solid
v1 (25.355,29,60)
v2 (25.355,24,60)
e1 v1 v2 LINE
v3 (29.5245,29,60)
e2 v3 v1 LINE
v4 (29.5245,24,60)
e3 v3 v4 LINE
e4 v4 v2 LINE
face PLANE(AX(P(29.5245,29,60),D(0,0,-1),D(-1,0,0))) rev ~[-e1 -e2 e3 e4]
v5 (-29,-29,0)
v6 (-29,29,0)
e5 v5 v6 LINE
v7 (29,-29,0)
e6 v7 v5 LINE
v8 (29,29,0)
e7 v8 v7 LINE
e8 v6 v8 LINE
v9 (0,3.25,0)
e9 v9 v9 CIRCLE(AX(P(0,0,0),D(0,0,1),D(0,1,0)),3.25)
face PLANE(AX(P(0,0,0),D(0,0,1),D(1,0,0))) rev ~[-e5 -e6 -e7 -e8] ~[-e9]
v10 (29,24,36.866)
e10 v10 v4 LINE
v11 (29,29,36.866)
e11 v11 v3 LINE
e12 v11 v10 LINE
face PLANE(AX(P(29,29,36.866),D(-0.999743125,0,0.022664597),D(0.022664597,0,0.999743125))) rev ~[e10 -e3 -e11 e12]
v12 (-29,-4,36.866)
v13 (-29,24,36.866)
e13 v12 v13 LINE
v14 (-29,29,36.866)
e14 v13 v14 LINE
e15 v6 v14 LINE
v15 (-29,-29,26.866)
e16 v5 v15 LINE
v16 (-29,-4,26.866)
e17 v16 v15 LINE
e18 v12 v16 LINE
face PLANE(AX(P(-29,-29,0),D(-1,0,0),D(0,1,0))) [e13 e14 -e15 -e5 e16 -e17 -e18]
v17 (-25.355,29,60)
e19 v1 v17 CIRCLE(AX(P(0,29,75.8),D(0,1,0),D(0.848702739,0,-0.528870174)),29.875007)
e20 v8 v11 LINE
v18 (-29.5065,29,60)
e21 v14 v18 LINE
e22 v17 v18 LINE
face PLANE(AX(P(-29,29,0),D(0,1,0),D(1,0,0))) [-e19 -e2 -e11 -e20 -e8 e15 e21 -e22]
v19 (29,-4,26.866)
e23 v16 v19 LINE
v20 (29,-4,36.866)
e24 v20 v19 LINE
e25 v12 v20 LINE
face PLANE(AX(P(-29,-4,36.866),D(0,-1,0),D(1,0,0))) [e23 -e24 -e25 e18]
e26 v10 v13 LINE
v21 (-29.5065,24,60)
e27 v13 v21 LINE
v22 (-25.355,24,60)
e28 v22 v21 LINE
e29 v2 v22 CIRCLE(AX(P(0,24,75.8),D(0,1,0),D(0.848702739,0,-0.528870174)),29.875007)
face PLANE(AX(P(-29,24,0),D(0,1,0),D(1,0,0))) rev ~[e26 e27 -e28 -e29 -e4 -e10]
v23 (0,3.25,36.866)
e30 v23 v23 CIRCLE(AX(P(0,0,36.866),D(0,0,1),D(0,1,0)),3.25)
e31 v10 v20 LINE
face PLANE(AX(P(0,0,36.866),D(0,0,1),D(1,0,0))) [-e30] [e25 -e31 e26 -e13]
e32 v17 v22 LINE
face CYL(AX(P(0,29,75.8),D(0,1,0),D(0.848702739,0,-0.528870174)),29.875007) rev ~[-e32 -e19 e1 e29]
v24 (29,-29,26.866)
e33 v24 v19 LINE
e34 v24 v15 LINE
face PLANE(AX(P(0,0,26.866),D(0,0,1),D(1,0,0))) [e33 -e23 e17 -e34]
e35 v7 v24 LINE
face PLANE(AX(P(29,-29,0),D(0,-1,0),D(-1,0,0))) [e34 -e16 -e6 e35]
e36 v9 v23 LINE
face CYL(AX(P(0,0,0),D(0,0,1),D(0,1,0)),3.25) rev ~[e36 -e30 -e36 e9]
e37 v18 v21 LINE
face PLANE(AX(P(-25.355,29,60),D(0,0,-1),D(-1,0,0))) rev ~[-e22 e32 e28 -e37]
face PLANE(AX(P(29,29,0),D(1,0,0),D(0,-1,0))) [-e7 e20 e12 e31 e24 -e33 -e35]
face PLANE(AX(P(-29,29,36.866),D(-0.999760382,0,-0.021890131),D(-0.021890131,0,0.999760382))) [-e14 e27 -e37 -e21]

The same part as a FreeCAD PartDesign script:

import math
import FreeCAD as App
import Part
import Sketcher

V = App.Vector


def add_polygon(sketch, points):
    """Adds a closed chain of lines whose ends are joined by coincident constraints."""
    first, n = sketch.GeometryCount, len(points)
    for a, b in zip(points, points[1:] + points[:1]):
        sketch.addGeometry(Part.LineSegment(App.Vector(*a, 0), App.Vector(*b, 0)), False)
    for i in range(n):
        sketch.addConstraint(Sketcher.Constraint("Coincident", first + i, 2, first + (i + 1) % n, 1))

doc = App.newDocument("Part")
body = doc.addObject("PartDesign::Body", "Body")

# Sketch on XY plane
sketch1 = body.newObject("Sketcher::SketchObject", "Sketch")
sketch1.AttachmentSupport = (doc.getObject("XY_Plane"), [""])
sketch1.MapMode = "FlatFace"
add_polygon(sketch1, [(-29, -29), (29, -29), (29, 29), (-29, 29)])  # lines 0-3
sketch1.addConstraint(Sketcher.Constraint("Horizontal", 0))
sketch1.addConstraint(Sketcher.Constraint("Vertical", 1))
sketch1.addConstraint(Sketcher.Constraint("Horizontal", 2))
sketch1.addConstraint(Sketcher.Constraint("Vertical", 3))
sketch1.addConstraint(Sketcher.Constraint("Symmetric", 0, 2, 2, 2, -1, 1))
sketch1.addConstraint(Sketcher.Constraint("Equal", 2, 1))
sketch1.addConstraint(Sketcher.Constraint("DistanceX", 0, 1, 0, 2, 58.0))
pad1 = body.newObject("PartDesign::Pad", "Pad")
pad1.Profile = sketch1
pad1.Length = 36.866

# Sketch on XY plane
sketch2 = body.newObject("Sketcher::SketchObject", "Sketch001")
sketch2.AttachmentSupport = (doc.getObject("XY_Plane"), [""])
sketch2.MapMode = "FlatFace"
sketch2.AttachmentOffset = App.Placement(V(0, 0, 36.866), App.Rotation())
add_polygon(sketch2, [(29, -4), (-29, -4), (-29, -29), (29, -29)])  # lines 0-3
sketch2.addConstraint(Sketcher.Constraint("Horizontal", 0))
sketch2.addConstraint(Sketcher.Constraint("Vertical", 1))
sketch2.addConstraint(Sketcher.Constraint("Horizontal", 2))
sketch2.addConstraint(Sketcher.Constraint("Vertical", 3))
sketch2.addConstraint(Sketcher.Constraint("DistanceX", 0, 2, 0, 1, 58.0))
sketch2.addConstraint(Sketcher.Constraint("DistanceY", 1, 2, 1, 1, 25.0))
sketch2.addConstraint(Sketcher.Constraint("DistanceX", 0, 2, -1, 1, 29.0))
sketch2.addConstraint(Sketcher.Constraint("DistanceY", 0, 2, -1, 1, 4.0))
pocket1 = body.newObject("PartDesign::Pocket", "Pocket")
pocket1.Profile = sketch2
pocket1.Length = 10

# Sketch on XY plane
sketch3 = body.newObject("Sketcher::SketchObject", "Sketch002")
sketch3.AttachmentSupport = (doc.getObject("XY_Plane"), [""])
sketch3.MapMode = "FlatFace"
sketch3.addGeometry(Part.Circle(V(0, 0, 0), V(0, 0, 1), 3.2), False)
sketch3.addConstraint(Sketcher.Constraint("Coincident", 0, 3, -1, 1))
sketch3.addConstraint(Sketcher.Constraint("Diameter", 0, 6.5))
doc.recompute()
hole = body.newObject("PartDesign::Hole", "Hole")
hole.Profile = sketch3
hole.ThreadType = "None"
hole.Diameter = 6.5
hole.DepthType = "ThroughAll"
hole.Reversed = True

# Sketch on XZ plane
sketch4 = body.newObject("Sketcher::SketchObject", "Sketch003")
sketch4.AttachmentSupport = (doc.getObject("XZ_Plane"), [""])
sketch4.MapMode = "FlatFace"
sketch4.AttachmentOffset = App.Placement(V(0, 0, -29), App.Rotation())
sketch4.addGeometry(Part.LineSegment(V(29, 36.9, 0), V(-29, 36.9, 0)), False)
sketch4.addGeometry(Part.LineSegment(V(-29, 36.9, 0), V(-29.5, 60, 0)), False)
sketch4.addGeometry(Part.LineSegment(V(-29.5, 60, 0), V(-25.4, 60, 0)), False)
sketch4.addGeometry(Part.ArcOfCircle(Part.Circle(V(0, 75.8, 0), V(0, 0, 1), 29.9), math.radians(-148), math.radians(-32)), False)
sketch4.addGeometry(Part.LineSegment(V(25.4, 60, 0), V(29.5, 60, 0)), False)
sketch4.addGeometry(Part.LineSegment(V(29.5, 60, 0), V(29, 36.9, 0)), False)
sketch4.addConstraint(Sketcher.Constraint("Coincident", 0, 2, 1, 1))
sketch4.addConstraint(Sketcher.Constraint("Coincident", 1, 2, 2, 1))
sketch4.addConstraint(Sketcher.Constraint("Coincident", 2, 2, 3, 1))
sketch4.addConstraint(Sketcher.Constraint("Coincident", 3, 2, 4, 1))
sketch4.addConstraint(Sketcher.Constraint("Coincident", 4, 2, 5, 1))
sketch4.addConstraint(Sketcher.Constraint("Coincident", 5, 2, 0, 1))
sketch4.addConstraint(Sketcher.Constraint("Horizontal", 0))
sketch4.addConstraint(Sketcher.Constraint("Horizontal", 2))
sketch4.addConstraint(Sketcher.Constraint("Horizontal", 4))
sketch4.addConstraint(Sketcher.Constraint("Symmetric", 2, 2, 3, 2, -2))
sketch4.addConstraint(Sketcher.Constraint("Radius", 3, 29.875))
sketch4.addConstraint(Sketcher.Constraint("DistanceX", 0, 2, 0, 1, 58.0))
sketch4.addConstraint(Sketcher.Constraint("DistanceX", 0, 2, -1, 1, 29.0))
sketch4.addConstraint(Sketcher.Constraint("DistanceY", -1, 1, 1, 2, 60.0))
sketch4.addConstraint(Sketcher.Constraint("DistanceY", -1, 1, 3, 3, 75.8))
sketch4.addConstraint(Sketcher.Constraint("Distance", 5, 23.14))
sketch4.addConstraint(Sketcher.Constraint("DistanceX", 2, 1, 2, 2, 4.1515))
sketch4.addConstraint(Sketcher.Constraint("DistanceX", 4, 1, 4, 2, 4.1695))
pad2 = body.newObject("PartDesign::Pad", "Pad001")
pad2.Profile = sketch4
pad2.Length = 5

doc.recompute()
